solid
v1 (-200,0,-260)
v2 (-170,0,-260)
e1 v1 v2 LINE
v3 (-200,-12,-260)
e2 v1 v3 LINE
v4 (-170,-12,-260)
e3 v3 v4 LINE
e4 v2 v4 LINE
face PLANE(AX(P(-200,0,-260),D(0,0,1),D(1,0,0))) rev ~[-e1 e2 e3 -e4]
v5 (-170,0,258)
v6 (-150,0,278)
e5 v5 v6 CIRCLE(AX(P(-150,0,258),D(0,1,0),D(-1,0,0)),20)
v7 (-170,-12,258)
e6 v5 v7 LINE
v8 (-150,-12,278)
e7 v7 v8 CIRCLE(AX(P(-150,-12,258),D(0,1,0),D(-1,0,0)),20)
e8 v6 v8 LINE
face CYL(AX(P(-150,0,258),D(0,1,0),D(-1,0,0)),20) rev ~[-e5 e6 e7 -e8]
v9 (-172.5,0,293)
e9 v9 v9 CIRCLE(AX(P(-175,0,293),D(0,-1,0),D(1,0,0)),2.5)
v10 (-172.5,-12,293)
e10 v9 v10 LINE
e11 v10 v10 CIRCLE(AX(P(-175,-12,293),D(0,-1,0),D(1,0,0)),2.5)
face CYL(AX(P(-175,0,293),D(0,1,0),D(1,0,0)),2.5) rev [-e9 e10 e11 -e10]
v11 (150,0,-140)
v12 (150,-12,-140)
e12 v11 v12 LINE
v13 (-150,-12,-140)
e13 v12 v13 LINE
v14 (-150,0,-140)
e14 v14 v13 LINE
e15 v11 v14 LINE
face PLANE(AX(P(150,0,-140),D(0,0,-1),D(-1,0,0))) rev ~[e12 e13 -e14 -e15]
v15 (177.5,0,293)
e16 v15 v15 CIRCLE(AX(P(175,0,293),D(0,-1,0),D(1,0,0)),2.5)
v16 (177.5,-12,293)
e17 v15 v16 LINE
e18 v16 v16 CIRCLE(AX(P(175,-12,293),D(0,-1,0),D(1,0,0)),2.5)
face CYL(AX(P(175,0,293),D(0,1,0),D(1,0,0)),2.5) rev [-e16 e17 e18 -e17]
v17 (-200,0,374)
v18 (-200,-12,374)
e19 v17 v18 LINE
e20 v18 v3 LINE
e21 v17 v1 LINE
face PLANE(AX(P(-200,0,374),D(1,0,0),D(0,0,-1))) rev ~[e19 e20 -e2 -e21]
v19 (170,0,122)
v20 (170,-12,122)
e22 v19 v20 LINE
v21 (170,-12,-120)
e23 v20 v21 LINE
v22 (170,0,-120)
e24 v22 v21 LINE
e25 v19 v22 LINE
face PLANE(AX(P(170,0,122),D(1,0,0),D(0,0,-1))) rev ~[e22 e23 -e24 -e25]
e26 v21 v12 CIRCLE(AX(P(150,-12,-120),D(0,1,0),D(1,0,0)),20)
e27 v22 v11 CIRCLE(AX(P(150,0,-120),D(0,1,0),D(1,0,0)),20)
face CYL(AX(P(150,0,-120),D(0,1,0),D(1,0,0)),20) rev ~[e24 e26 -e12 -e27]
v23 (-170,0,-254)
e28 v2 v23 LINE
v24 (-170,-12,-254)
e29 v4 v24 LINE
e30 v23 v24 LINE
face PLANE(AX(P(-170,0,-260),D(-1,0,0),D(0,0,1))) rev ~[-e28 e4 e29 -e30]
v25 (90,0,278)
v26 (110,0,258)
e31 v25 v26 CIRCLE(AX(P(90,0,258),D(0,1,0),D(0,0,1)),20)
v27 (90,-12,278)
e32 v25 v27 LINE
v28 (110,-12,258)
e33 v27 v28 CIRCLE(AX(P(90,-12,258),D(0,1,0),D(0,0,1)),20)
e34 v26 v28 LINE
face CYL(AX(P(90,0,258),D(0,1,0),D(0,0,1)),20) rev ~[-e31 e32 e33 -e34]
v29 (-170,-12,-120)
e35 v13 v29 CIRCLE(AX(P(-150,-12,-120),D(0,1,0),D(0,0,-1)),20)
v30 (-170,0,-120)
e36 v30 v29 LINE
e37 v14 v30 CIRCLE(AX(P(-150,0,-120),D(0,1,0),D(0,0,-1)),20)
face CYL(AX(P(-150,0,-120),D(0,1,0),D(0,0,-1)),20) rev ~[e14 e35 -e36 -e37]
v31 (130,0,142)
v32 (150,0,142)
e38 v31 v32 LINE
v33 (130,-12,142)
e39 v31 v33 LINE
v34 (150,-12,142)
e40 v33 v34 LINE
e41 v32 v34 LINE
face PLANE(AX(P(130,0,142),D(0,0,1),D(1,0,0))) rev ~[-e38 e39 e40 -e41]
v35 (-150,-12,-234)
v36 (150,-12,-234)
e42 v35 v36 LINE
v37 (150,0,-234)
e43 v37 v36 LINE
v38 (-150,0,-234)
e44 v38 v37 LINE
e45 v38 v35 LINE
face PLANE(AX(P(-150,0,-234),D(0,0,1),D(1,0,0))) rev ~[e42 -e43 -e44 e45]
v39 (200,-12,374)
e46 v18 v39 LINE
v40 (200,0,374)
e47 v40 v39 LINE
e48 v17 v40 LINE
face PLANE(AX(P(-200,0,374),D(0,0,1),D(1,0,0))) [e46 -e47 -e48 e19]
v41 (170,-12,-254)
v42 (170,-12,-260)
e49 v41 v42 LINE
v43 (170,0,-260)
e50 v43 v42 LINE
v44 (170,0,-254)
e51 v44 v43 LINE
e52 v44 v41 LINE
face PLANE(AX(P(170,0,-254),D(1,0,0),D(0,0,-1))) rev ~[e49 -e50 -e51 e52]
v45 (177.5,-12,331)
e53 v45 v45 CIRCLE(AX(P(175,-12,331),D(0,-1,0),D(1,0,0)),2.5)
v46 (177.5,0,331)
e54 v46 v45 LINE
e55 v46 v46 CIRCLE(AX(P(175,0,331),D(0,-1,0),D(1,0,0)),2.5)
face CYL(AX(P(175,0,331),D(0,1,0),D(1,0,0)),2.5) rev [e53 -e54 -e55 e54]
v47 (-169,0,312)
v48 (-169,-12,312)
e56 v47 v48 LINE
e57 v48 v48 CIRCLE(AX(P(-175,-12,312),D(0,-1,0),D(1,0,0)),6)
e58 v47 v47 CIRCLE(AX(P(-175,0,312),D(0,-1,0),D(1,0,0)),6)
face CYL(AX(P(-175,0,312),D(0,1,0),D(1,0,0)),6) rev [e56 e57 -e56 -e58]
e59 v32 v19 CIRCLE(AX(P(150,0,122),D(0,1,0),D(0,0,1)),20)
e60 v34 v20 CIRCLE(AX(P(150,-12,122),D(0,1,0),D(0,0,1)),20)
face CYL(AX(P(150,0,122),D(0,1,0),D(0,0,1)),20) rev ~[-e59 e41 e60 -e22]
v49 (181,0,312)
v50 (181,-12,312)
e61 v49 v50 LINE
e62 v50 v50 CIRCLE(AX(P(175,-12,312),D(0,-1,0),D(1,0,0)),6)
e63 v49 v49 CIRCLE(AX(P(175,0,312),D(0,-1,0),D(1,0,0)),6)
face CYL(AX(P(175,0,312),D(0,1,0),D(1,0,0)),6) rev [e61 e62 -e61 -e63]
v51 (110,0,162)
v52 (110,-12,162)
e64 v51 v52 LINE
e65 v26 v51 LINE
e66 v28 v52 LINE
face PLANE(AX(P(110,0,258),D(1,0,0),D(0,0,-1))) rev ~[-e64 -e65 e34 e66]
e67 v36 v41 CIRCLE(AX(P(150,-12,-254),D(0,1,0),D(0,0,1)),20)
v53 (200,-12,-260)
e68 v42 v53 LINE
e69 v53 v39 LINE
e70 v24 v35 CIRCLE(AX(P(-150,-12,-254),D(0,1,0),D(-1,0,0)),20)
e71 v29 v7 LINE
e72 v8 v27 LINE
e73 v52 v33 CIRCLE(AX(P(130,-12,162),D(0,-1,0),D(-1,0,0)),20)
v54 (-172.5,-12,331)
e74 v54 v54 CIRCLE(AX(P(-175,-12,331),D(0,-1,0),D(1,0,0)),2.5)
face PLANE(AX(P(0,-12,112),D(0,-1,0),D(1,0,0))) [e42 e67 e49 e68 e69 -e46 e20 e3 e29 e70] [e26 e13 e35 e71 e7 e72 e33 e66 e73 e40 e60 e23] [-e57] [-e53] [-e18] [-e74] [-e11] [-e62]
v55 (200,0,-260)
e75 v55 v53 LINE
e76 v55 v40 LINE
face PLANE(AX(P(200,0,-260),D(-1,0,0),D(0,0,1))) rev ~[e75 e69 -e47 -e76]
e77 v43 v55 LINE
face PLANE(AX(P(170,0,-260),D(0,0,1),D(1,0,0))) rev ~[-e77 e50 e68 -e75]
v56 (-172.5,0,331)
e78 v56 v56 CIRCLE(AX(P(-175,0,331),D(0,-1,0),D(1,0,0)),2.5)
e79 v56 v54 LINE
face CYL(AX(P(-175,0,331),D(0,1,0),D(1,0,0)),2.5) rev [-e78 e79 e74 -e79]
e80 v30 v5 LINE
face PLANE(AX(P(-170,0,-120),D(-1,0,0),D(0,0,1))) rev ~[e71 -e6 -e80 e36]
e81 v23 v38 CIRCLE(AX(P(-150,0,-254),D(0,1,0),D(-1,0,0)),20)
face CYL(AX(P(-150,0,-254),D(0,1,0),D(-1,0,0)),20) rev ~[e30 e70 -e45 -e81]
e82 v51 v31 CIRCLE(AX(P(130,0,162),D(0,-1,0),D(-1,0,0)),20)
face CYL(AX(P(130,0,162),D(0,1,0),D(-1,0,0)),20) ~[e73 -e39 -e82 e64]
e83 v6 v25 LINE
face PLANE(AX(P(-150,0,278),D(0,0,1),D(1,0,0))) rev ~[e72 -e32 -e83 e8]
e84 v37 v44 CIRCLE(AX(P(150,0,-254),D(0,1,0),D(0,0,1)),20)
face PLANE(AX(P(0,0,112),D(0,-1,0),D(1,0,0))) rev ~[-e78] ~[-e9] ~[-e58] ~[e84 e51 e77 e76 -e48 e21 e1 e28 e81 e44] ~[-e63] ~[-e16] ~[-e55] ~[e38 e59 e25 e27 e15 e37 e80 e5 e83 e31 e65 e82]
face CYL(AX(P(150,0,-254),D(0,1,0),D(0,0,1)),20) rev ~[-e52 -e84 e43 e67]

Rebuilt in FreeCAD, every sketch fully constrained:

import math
import FreeCAD as App
import Part
import Sketcher

doc = App.newDocument("Part")
body = doc.addObject("PartDesign::Body", "Body")

# Sketch on XZ plane
sketch1 = body.newObject("Sketcher::SketchObject", "Sketch")
sketch1.AttachmentSupport = (doc.getObject("XZ_Plane"), [""])
sketch1.MapMode = "FlatFace"
sketch1.addGeometry([
    Part.LineSegment(App.Vector(-200, 374, 0), App.Vector(-200, -260, 0)),  # 0
    Part.LineSegment(App.Vector(-200, -260, 0), App.Vector(-170, -260, 0)),  # 1
    Part.LineSegment(App.Vector(-170, -260, 0), App.Vector(-170, -254, 0)),  # 2
    Part.ArcOfCircle(Part.Circle(App.Vector(-150, -254, 0), App.Vector(0, 0, 1), 20), math.radians(90), math.radians(180)),  # 3
    Part.LineSegment(App.Vector(-150, -234, 0), App.Vector(150, -234, 0)),  # 4
    Part.ArcOfCircle(Part.Circle(App.Vector(150, -254, 0), App.Vector(0, 0, 1), 20), math.radians(0), math.radians(90)),  # 5
    Part.LineSegment(App.Vector(170, -254, 0), App.Vector(170, -260, 0)),  # 6
    Part.LineSegment(App.Vector(170, -260, 0), App.Vector(200, -260, 0)),  # 7
    Part.LineSegment(App.Vector(200, -260, 0), App.Vector(200, 374, 0)),  # 8
    Part.LineSegment(App.Vector(200, 374, 0), App.Vector(-200, 374, 0)),  # 9
    Part.ArcOfCircle(Part.Circle(App.Vector(-150, 258, 0), App.Vector(0, 0, 1), 20), math.radians(90), math.radians(180)),  # 10
    Part.LineSegment(App.Vector(-150, 278, 0), App.Vector(90, 278, 0)),  # 11
    Part.ArcOfCircle(Part.Circle(App.Vector(90, 258, 0), App.Vector(0, 0, 1), 20), math.radians(0), math.radians(90)),  # 12
    Part.LineSegment(App.Vector(110, 258, 0), App.Vector(110, 162, 0)),  # 13
    Part.ArcOfCircle(Part.Circle(App.Vector(130, 162, 0), App.Vector(0, 0, 1), 20), math.radians(180), math.radians(270)),  # 14
    Part.LineSegment(App.Vector(130, 142, 0), App.Vector(150, 142, 0)),  # 15
    Part.ArcOfCircle(Part.Circle(App.Vector(150, 122, 0), App.Vector(0, 0, 1), 20), math.radians(0), math.radians(90)),  # 16
    Part.LineSegment(App.Vector(170, 122, 0), App.Vector(170, -120, 0)),  # 17
    Part.ArcOfCircle(Part.Circle(App.Vector(150, -120, 0), App.Vector(0, 0, 1), 20), math.radians(-90), math.radians(0)),  # 18
    Part.LineSegment(App.Vector(150, -140, 0), App.Vector(-150, -140, 0)),  # 19
    Part.ArcOfCircle(Part.Circle(App.Vector(-150, -120, 0), App.Vector(0, 0, 1), 20), math.radians(180), math.radians(270)),  # 20
    Part.LineSegment(App.Vector(-170, -120, 0), App.Vector(-170, 258, 0)),  # 21
    Part.Circle(App.Vector(-175, 293, 0), App.Vector(0, 0, 1), 2.5),  # 22
    Part.Circle(App.Vector(-175, 312, 0), App.Vector(0, 0, 1), 6),  # 23
    Part.Circle(App.Vector(-175, 331, 0), App.Vector(0, 0, 1), 2.5),  # 24
    Part.Circle(App.Vector(175, 293, 0), App.Vector(0, 0, 1), 2.5),  # 25
    Part.Circle(App.Vector(175, 312, 0), App.Vector(0, 0, 1), 6),  # 26
    Part.Circle(App.Vector(175, 331, 0), App.Vector(0, 0, 1), 2.5),  # 27
], False)
sketch1.addConstraint([
    Sketcher.Constraint("Coincident", 0, 2, 1, 1),
    Sketcher.Constraint("Coincident", 1, 2, 2, 1),
    Sketcher.Constraint("Tangent", 2, 2, 3, 2),
    Sketcher.Constraint("Tangent", 3, 1, 4, 1),
    Sketcher.Constraint("Tangent", 4, 2, 5, 2),
    Sketcher.Constraint("Tangent", 5, 1, 6, 1),
    Sketcher.Constraint("Coincident", 6, 2, 7, 1),
    Sketcher.Constraint("Coincident", 7, 2, 8, 1),
    Sketcher.Constraint("Coincident", 8, 2, 9, 1),
    Sketcher.Constraint("Coincident", 9, 2, 0, 1),
    Sketcher.Constraint("Tangent", 10, 1, 11, 1),
    Sketcher.Constraint("Tangent", 11, 2, 12, 2),
    Sketcher.Constraint("Tangent", 12, 1, 13, 1),
    Sketcher.Constraint("Tangent", 13, 2, 14, 1),
    Sketcher.Constraint("Tangent", 14, 2, 15, 1),
    Sketcher.Constraint("Tangent", 15, 2, 16, 2),
    Sketcher.Constraint("Tangent", 16, 1, 17, 1),
    Sketcher.Constraint("Tangent", 17, 2, 18, 2),
    Sketcher.Constraint("Tangent", 18, 1, 19, 1),
    Sketcher.Constraint("Tangent", 19, 2, 20, 2),
    Sketcher.Constraint("Tangent", 20, 1, 21, 1),
    Sketcher.Constraint("Tangent", 21, 2, 10, 2),
    Sketcher.Constraint("Vertical", 0),
    Sketcher.Constraint("Horizontal", 1),
    Sketcher.Constraint("Vertical", 2),
    Sketcher.Constraint("Horizontal", 4),
    Sketcher.Constraint("Vertical", 6),
    Sketcher.Constraint("Horizontal", 7),
    Sketcher.Constraint("Vertical", 8),
    Sketcher.Constraint("Horizontal", 9),
    Sketcher.Constraint("Horizontal", 11),
    Sketcher.Constraint("Vertical", 13),
    Sketcher.Constraint("Horizontal", 15),
    Sketcher.Constraint("Vertical", 17),
    Sketcher.Constraint("Horizontal", 19),
    Sketcher.Constraint("Vertical", 21),
    Sketcher.Constraint("Equal", 3, 5),
    Sketcher.Constraint("Equal", 5, 10),
    Sketcher.Constraint("Equal", 10, 12),
    Sketcher.Constraint("Equal", 12, 14),
    Sketcher.Constraint("Equal", 14, 16),
    Sketcher.Constraint("Equal", 16, 18),
    Sketcher.Constraint("Equal", 18, 20),
    Sketcher.Constraint("Equal", 22, 24),
    Sketcher.Constraint("Equal", 24, 25),
    Sketcher.Constraint("Equal", 23, 26),
    Sketcher.Constraint("Equal", 25, 27),
    Sketcher.Constraint("Symmetric", 22, 3, 25, 3, -2),
    Sketcher.Constraint("Symmetric", 23, 3, 26, 3, -2),
    Sketcher.Constraint("Symmetric", 24, 3, 27, 3, -2),
    Sketcher.Constraint("Symmetric", 1, 2, 6, 2, -2),
    Sketcher.Constraint("Vertical", 3, 3, 10, 3),
    Sketcher.Constraint("Vertical", 5, 3, 16, 3),
    Sketcher.Constraint("Vertical", 22, 3, 23, 3),
    Sketcher.Constraint("Vertical", 23, 3, 24, 3),
    Sketcher.Constraint("Equal", 1, 7),
    Sketcher.Constraint("Diameter", 22, 5.0),
    Sketcher.Constraint("Diameter", 23, 12.0),
    Sketcher.Constraint("Radius", 3, 20.0),
    Sketcher.Constraint("DistanceX", 1, 1, 1, 2, 30.0),
    Sketcher.Constraint("DistanceX", 4, 1, 4, 2, 300.0),
    Sketcher.Constraint("DistanceX", 11, 1, 11, 2, 240.0),
    Sketcher.Constraint("DistanceY", 0, 2, 0, 1, 634.0),
    Sketcher.Constraint("DistanceY", 2, 1, 2, 2, 6.0),
    Sketcher.Constraint("DistanceY", 13, 2, 13, 1, 96.0),
    Sketcher.Constraint("DistanceY", 17, 2, 17, 1, 242.0),
    Sketcher.Constraint("DistanceY", 3, 3, -1, 1, 254.0),
    Sketcher.Constraint("DistanceY", -1, 1, 10, 3, 258.0),
    Sketcher.Constraint("DistanceX", 22, 3, -1, 1, 175.0),
    Sketcher.Constraint("DistanceY", -1, 1, 22, 3, 293.0),
    Sketcher.Constraint("DistanceY", -1, 1, 23, 3, 312.0),
    Sketcher.Constraint("DistanceY", -1, 1, 24, 3, 331.0),
])
pad1 = body.newObject("PartDesign::Pad", "Pad")
pad1.Profile = sketch1
pad1.Length = 12

doc.recompute()
